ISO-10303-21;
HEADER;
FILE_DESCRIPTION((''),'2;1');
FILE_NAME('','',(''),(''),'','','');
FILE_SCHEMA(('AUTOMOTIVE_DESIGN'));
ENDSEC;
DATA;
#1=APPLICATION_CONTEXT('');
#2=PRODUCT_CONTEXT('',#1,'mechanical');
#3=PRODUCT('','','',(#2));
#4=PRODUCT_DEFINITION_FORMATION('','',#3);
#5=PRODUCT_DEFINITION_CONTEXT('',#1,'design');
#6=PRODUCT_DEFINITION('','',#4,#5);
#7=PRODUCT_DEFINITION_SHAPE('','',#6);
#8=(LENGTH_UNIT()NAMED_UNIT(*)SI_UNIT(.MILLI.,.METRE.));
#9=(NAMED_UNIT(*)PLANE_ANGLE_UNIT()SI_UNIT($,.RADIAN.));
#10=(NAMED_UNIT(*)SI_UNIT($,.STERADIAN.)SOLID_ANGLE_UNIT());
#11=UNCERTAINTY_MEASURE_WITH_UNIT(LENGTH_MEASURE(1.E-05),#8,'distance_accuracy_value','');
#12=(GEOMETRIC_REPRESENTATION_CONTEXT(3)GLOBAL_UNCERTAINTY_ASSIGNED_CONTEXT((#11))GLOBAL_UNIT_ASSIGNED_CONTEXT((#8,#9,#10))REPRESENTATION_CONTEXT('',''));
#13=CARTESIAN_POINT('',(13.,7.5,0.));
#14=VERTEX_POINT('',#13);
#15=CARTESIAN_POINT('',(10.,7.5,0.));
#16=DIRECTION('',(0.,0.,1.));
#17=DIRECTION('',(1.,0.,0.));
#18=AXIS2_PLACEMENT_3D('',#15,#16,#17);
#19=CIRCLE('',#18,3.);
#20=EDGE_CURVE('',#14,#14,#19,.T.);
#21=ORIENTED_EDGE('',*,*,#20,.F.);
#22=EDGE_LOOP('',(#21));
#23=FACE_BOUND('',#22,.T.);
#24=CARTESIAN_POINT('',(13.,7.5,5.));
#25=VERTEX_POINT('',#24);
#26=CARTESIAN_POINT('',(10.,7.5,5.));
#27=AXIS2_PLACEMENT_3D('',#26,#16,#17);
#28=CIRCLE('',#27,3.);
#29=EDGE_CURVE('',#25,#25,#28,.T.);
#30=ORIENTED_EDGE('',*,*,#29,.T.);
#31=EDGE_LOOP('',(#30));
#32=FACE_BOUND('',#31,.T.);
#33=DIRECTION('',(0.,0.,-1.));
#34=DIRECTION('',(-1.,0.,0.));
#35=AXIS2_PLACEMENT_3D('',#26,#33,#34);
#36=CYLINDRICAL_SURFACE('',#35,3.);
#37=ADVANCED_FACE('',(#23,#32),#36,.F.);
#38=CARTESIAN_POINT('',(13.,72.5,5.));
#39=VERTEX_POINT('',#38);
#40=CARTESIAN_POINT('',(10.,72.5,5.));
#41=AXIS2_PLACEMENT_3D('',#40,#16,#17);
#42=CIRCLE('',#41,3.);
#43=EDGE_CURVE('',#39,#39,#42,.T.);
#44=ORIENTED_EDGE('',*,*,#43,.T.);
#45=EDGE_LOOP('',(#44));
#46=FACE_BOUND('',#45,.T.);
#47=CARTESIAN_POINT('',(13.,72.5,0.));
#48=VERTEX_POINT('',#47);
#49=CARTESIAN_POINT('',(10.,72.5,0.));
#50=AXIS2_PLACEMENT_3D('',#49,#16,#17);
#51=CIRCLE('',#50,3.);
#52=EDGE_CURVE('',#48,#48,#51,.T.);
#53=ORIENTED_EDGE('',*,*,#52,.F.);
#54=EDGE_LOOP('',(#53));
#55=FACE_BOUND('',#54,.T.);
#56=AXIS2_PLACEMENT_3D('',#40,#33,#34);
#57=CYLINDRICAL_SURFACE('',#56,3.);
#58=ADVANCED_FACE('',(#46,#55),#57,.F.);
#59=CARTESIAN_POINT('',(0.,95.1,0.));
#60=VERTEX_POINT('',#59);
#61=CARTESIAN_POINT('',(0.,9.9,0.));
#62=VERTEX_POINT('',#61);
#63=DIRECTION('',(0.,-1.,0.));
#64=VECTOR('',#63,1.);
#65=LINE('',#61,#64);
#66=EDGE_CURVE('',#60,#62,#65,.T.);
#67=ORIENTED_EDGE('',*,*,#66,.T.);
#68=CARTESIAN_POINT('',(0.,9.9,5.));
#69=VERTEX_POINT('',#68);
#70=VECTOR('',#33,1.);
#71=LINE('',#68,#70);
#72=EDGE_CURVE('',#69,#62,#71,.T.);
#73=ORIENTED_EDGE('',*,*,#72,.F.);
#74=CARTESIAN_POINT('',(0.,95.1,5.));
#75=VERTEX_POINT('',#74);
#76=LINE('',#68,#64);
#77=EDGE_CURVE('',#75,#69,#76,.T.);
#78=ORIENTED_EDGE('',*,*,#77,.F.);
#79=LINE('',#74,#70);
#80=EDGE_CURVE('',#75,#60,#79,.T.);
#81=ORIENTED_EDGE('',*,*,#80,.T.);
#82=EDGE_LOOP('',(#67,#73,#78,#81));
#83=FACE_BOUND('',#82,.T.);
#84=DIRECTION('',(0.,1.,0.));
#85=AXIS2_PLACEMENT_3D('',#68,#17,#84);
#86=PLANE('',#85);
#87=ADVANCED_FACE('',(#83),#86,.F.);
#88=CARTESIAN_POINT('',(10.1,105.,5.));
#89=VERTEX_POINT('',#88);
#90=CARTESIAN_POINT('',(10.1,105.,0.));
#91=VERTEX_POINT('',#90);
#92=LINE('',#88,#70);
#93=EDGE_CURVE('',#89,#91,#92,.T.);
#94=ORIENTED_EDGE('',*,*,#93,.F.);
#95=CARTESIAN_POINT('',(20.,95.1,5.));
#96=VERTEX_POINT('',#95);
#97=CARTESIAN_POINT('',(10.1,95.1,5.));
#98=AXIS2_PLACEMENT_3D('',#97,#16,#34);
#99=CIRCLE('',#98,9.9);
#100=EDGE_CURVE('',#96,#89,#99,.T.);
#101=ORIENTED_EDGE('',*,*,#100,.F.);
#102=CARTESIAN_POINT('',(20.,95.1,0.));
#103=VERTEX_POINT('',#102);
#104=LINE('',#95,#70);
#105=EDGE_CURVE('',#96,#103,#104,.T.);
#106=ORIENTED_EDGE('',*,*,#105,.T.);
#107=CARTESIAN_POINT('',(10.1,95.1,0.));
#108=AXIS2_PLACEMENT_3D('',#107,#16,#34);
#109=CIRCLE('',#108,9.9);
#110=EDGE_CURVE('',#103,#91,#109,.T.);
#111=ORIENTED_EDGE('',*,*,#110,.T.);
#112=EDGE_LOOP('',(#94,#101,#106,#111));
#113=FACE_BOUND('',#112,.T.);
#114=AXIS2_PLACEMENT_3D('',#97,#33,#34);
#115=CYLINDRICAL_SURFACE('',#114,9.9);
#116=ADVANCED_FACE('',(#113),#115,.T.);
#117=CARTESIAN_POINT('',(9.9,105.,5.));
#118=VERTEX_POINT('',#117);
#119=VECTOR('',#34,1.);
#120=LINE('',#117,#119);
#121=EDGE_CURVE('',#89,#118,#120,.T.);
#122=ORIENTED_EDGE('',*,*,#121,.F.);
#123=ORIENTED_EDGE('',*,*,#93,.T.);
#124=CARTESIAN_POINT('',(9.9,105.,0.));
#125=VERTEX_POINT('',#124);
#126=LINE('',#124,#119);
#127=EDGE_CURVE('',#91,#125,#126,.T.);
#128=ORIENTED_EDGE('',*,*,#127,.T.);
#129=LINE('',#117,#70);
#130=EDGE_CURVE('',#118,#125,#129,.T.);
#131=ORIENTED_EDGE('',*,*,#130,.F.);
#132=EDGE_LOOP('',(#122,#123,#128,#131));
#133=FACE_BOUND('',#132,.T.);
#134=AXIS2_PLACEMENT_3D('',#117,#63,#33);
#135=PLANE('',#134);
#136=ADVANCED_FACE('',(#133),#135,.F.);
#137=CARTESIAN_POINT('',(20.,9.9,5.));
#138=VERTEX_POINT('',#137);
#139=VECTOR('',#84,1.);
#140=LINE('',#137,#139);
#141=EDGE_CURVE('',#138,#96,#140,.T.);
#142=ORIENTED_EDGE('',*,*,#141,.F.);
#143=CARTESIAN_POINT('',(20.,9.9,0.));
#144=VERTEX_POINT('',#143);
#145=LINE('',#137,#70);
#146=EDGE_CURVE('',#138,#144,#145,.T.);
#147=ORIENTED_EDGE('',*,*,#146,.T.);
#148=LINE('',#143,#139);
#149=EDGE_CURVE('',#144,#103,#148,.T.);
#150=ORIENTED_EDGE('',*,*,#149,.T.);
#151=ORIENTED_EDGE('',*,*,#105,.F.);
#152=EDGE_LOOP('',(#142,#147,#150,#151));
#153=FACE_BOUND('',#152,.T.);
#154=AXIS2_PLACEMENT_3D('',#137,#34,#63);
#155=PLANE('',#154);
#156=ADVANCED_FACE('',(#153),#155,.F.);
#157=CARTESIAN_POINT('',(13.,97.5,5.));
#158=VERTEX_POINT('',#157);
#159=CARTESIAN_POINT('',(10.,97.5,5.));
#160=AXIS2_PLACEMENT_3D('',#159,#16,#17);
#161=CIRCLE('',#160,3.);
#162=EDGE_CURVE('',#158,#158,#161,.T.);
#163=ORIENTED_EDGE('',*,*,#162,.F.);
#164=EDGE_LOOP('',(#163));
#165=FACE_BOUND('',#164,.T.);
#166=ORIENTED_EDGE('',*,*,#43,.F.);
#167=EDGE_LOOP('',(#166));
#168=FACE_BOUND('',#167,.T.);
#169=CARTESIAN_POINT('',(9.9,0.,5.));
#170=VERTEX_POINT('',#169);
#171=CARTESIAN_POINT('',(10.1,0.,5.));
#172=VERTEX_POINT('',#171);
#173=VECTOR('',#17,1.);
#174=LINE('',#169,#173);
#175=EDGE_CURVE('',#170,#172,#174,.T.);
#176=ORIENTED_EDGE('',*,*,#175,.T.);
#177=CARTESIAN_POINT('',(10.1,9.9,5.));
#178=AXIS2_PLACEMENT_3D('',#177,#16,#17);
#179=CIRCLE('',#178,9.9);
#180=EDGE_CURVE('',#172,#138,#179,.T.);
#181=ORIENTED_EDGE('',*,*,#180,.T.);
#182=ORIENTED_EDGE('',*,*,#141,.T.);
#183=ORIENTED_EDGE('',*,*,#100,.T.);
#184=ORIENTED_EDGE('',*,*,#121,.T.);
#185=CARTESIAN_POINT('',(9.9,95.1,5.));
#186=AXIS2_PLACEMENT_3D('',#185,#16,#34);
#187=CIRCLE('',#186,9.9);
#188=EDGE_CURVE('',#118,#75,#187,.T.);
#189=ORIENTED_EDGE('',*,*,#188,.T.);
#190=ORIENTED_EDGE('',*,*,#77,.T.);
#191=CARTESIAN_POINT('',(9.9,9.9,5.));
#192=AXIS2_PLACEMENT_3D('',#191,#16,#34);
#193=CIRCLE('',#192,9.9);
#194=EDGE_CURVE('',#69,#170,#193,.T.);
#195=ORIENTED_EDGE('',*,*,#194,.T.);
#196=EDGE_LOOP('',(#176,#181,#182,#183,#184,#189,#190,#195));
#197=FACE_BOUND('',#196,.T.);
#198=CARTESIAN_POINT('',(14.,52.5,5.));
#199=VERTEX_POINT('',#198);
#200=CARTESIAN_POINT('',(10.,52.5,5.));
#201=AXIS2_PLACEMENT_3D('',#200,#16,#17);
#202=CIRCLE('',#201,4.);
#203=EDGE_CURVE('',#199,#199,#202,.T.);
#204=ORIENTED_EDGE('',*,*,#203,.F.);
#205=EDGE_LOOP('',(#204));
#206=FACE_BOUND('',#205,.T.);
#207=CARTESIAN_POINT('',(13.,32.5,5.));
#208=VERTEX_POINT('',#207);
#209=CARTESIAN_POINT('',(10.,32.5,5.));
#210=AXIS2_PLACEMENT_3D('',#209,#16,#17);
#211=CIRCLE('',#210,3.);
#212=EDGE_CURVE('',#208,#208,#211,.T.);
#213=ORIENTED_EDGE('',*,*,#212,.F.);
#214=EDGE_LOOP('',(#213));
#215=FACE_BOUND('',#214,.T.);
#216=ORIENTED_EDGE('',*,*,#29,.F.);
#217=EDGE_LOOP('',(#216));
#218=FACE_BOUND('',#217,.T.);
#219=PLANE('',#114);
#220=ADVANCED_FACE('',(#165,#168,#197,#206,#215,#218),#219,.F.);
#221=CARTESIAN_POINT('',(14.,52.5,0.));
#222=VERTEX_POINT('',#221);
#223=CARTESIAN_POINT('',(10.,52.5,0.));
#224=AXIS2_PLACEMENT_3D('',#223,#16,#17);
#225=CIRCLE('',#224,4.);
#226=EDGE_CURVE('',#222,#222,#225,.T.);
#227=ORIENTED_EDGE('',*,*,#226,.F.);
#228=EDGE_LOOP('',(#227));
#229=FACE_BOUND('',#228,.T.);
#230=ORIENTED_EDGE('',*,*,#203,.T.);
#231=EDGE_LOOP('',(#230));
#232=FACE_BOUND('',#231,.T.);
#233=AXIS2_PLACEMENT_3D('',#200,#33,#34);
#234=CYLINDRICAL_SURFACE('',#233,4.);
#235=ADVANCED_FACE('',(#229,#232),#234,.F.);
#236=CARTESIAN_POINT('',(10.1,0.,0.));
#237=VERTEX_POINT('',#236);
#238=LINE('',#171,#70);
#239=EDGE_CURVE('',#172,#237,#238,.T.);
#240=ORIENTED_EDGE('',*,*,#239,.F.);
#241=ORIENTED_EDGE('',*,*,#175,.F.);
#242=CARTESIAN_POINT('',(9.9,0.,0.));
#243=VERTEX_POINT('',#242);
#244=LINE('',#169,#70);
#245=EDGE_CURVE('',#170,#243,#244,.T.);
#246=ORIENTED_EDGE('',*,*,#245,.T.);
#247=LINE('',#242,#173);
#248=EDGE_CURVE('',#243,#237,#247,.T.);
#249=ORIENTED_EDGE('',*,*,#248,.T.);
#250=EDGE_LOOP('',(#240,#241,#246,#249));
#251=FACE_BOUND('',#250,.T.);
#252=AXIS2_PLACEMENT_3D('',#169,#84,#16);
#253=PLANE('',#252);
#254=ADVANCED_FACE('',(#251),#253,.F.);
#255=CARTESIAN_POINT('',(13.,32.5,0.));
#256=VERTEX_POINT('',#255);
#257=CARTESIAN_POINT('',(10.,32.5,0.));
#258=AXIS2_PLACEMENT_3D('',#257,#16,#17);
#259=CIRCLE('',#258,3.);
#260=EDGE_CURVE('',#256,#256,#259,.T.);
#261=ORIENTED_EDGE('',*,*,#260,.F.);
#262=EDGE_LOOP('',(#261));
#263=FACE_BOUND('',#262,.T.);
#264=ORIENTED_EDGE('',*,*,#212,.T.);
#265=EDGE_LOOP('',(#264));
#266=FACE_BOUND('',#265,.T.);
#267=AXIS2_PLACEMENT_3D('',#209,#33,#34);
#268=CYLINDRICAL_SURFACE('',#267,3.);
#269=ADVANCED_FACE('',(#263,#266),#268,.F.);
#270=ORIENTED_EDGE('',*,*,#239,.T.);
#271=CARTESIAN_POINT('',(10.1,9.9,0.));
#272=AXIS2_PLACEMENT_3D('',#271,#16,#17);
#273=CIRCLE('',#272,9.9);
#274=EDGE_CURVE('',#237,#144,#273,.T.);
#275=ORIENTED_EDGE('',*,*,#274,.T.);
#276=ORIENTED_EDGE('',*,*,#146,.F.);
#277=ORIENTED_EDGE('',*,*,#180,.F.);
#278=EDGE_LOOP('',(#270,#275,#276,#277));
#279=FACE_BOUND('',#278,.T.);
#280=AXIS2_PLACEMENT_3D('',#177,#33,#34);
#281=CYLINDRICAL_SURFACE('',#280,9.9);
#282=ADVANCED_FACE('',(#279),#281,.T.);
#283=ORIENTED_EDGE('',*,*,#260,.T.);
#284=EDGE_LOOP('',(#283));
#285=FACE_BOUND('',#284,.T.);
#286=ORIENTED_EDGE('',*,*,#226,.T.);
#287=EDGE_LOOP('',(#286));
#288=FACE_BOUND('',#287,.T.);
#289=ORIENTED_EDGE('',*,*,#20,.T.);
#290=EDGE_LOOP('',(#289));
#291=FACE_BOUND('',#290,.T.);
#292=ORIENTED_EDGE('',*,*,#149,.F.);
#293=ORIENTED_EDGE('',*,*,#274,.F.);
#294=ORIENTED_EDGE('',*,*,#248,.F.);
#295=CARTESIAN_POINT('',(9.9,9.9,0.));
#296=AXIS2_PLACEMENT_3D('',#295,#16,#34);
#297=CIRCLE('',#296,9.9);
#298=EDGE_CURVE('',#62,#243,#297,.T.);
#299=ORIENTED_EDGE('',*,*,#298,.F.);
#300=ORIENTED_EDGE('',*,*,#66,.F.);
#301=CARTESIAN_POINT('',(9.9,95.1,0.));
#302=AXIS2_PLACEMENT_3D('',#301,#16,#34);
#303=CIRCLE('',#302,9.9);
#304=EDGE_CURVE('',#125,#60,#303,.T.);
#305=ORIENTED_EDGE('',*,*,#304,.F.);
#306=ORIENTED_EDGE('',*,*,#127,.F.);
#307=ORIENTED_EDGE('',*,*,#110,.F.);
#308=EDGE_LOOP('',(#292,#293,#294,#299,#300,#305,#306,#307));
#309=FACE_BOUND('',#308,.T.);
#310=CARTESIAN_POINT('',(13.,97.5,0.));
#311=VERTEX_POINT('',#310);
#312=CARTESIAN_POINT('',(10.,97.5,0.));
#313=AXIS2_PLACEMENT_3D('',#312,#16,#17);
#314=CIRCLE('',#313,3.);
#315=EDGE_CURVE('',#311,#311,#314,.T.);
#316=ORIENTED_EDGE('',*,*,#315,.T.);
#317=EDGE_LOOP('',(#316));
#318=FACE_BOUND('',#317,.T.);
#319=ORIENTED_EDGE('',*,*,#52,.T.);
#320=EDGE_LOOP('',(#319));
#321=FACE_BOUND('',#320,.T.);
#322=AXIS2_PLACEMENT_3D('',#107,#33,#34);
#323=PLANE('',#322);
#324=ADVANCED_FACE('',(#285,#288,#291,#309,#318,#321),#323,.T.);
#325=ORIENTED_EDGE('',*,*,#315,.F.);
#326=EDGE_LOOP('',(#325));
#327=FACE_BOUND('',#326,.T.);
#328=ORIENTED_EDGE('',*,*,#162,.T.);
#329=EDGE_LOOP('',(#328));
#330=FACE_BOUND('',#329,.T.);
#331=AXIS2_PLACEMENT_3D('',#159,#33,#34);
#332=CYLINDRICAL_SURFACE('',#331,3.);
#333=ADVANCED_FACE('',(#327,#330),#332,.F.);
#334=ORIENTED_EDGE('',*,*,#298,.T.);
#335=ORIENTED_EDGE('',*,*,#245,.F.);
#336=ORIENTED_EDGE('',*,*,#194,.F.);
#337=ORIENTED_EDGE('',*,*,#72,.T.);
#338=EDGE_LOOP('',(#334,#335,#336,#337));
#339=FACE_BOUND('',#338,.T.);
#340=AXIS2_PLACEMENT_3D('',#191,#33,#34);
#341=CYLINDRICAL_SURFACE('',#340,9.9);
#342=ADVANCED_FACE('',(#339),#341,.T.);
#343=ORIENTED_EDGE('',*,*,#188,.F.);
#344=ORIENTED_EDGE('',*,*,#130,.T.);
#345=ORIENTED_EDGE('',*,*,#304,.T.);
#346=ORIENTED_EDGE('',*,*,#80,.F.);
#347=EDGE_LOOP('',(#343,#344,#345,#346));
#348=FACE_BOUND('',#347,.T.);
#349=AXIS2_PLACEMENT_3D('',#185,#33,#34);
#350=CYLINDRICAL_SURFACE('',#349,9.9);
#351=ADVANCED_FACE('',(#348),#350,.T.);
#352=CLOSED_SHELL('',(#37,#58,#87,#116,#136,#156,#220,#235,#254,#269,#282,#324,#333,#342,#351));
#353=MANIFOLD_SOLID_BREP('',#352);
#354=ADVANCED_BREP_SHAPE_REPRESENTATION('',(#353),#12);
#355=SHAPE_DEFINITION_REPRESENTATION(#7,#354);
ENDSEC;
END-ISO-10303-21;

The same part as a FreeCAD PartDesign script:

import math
import FreeCAD as App
import Part
import Sketcher

V = App.Vector
Q = App.Units.Quantity

doc = App.newDocument("Part")
params = doc.addObject("Spreadsheet::Sheet", "Params")
for row, (alias, value) in enumerate([
    ("sketch1_diameter", "6 mm"),
    ("sketch1_diameter2", "8 mm"),
    ("sketch1_radius", "9.9 mm"),
    ("sketch1_width", "0.2 mm"),
    ("sketch1_height", "85.2 mm"),
    ("pad1_length", "5 mm"),
], start=1):
    params.set(f"A{row}", alias)
    params.set(f"B{row}", "=" + value)
    params.setAlias(f"B{row}", alias)

body = doc.addObject("PartDesign::Body", "Body")

sketch1 = doc.addObject("Sketcher::SketchObject", "Sketch")
body.addObject(sketch1)
sketch1.AttachmentSupport = (doc.XY_Plane, [""])
sketch1.MapMode = "FlatFace"
sketch1.addGeometry(Part.LineSegment(V(9.9, 0, 0), V(10.1, 0, 0)), False)
sketch1.addGeometry(Part.ArcOfCircle(Part.Circle(V(10.1, 9.9, 0), V(0, 0, 1), 9.9), math.radians(-90), math.radians(0)), False)
sketch1.addGeometry(Part.LineSegment(V(20, 9.9, 0), V(20, 95.1, 0)), False)
sketch1.addGeometry(Part.ArcOfCircle(Part.Circle(V(10.1, 95.1, 0), V(0, 0, 1), 9.9), math.radians(0), math.radians(90)), False)
sketch1.addGeometry(Part.LineSegment(V(10.1, 105, 0), V(9.9, 105, 0)), False)
sketch1.addGeometry(Part.ArcOfCircle(Part.Circle(V(9.9, 95.1, 0), V(0, 0, 1), 9.9), math.radians(90), math.radians(180)), False)
sketch1.addGeometry(Part.LineSegment(V(0, 95.1, 0), V(0, 9.9, 0)), False)
sketch1.addGeometry(Part.ArcOfCircle(Part.Circle(V(9.9, 9.9, 0), V(0, 0, 1), 9.9), math.radians(180), math.radians(270)), False)
sketch1.addGeometry(Part.Circle(V(10, 7.5, 0), V(0, 0, 1), 3), False)
sketch1.addGeometry(Part.Circle(V(10, 32.5, 0), V(0, 0, 1), 3), False)
sketch1.addGeometry(Part.Circle(V(10, 52.5, 0), V(0, 0, 1), 4), False)
sketch1.addGeometry(Part.Circle(V(10, 72.5, 0), V(0, 0, 1), 3), False)
sketch1.addGeometry(Part.Circle(V(10, 97.5, 0), V(0, 0, 1), 3), False)
sketch1.addConstraint(Sketcher.Constraint("Tangent", 0, 2, 1, 1))
sketch1.addConstraint(Sketcher.Constraint("Tangent", 1, 2, 2, 1))
sketch1.addConstraint(Sketcher.Constraint("Tangent", 2, 2, 3, 1))
sketch1.addConstraint(Sketcher.Constraint("Tangent", 3, 2, 4, 1))
sketch1.addConstraint(Sketcher.Constraint("Tangent", 4, 2, 5, 1))
sketch1.addConstraint(Sketcher.Constraint("Tangent", 5, 2, 6, 1))
sketch1.addConstraint(Sketcher.Constraint("Tangent", 6, 2, 7, 1))
sketch1.addConstraint(Sketcher.Constraint("Tangent", 7, 2, 0, 1))
sketch1.addConstraint(Sketcher.Constraint("Horizontal", 0))
sketch1.addConstraint(Sketcher.Constraint("Vertical", 2))
sketch1.addConstraint(Sketcher.Constraint("Horizontal", 4))
sketch1.addConstraint(Sketcher.Constraint("Vertical", 6))
sketch1.addConstraint(Sketcher.Constraint("Equal", 1, 3))
sketch1.addConstraint(Sketcher.Constraint("Equal", 3, 5))
sketch1.addConstraint(Sketcher.Constraint("Equal", 5, 7))
sketch1.addConstraint(Sketcher.Constraint("Equal", 8, 9))
sketch1.addConstraint(Sketcher.Constraint("Equal", 9, 11))
sketch1.addConstraint(Sketcher.Constraint("Equal", 11, 12))
sketch1.addConstraint(Sketcher.Constraint("PointOnObject", 0, 2, -1))
sketch1.addConstraint(Sketcher.Constraint("PointOnObject", 5, 2, -2))
sketch1.addConstraint(Sketcher.Constraint("Vertical", 8, 3, 9, 3))
sketch1.addConstraint(Sketcher.Constraint("Vertical", 9, 3, 10, 3))
sketch1.addConstraint(Sketcher.Constraint("Vertical", 10, 3, 11, 3))
sketch1.addConstraint(Sketcher.Constraint("Vertical", 11, 3, 12, 3))
sketch1.addConstraint(Sketcher.Constraint("Diameter", 8, Q("6 mm")))
sketch1.addConstraint(Sketcher.Constraint("Diameter", 10, Q("8 mm")))
sketch1.addConstraint(Sketcher.Constraint("Radius", 1, Q("9.9 mm")))
sketch1.addConstraint(Sketcher.Constraint("DistanceX", 0, 1, 0, 2, Q("0.2 mm")))
sketch1.addConstraint(Sketcher.Constraint("DistanceY", 2, 1, 2, 2, Q("85.2 mm")))
sketch1.addConstraint(Sketcher.Constraint("DistanceX", -1, 1, 8, 3, Q("10 mm")))
sketch1.addConstraint(Sketcher.Constraint("DistanceY", 8, 3, 9, 3, Q("25 mm")))
sketch1.addConstraint(Sketcher.Constraint("DistanceY", 9, 3, 10, 3, Q("20 mm")))
sketch1.addConstraint(Sketcher.Constraint("DistanceY", 10, 3, 11, 3, Q("20 mm")))
sketch1.addConstraint(Sketcher.Constraint("DistanceY", 11, 3, 12, 3, Q("25 mm")))
sketch1.addConstraint(Sketcher.Constraint("DistanceY", -1, 1, 8, 3, Q("7.5 mm")))
sketch1.setExpression("Constraints[24]", "Params.sketch1_diameter")
sketch1.setExpression("Constraints[25]", "Params.sketch1_diameter2")
sketch1.setExpression("Constraints[26]", "Params.sketch1_radius")
sketch1.setExpression("Constraints[27]", "Params.sketch1_width")
sketch1.setExpression("Constraints[28]", "Params.sketch1_height")
pad1 = doc.addObject("PartDesign::Pad", "Pad")
body.addObject(pad1)
pad1.Profile = sketch1
pad1.setExpression("Length", "Params.pad1_length")

doc.recompute()
